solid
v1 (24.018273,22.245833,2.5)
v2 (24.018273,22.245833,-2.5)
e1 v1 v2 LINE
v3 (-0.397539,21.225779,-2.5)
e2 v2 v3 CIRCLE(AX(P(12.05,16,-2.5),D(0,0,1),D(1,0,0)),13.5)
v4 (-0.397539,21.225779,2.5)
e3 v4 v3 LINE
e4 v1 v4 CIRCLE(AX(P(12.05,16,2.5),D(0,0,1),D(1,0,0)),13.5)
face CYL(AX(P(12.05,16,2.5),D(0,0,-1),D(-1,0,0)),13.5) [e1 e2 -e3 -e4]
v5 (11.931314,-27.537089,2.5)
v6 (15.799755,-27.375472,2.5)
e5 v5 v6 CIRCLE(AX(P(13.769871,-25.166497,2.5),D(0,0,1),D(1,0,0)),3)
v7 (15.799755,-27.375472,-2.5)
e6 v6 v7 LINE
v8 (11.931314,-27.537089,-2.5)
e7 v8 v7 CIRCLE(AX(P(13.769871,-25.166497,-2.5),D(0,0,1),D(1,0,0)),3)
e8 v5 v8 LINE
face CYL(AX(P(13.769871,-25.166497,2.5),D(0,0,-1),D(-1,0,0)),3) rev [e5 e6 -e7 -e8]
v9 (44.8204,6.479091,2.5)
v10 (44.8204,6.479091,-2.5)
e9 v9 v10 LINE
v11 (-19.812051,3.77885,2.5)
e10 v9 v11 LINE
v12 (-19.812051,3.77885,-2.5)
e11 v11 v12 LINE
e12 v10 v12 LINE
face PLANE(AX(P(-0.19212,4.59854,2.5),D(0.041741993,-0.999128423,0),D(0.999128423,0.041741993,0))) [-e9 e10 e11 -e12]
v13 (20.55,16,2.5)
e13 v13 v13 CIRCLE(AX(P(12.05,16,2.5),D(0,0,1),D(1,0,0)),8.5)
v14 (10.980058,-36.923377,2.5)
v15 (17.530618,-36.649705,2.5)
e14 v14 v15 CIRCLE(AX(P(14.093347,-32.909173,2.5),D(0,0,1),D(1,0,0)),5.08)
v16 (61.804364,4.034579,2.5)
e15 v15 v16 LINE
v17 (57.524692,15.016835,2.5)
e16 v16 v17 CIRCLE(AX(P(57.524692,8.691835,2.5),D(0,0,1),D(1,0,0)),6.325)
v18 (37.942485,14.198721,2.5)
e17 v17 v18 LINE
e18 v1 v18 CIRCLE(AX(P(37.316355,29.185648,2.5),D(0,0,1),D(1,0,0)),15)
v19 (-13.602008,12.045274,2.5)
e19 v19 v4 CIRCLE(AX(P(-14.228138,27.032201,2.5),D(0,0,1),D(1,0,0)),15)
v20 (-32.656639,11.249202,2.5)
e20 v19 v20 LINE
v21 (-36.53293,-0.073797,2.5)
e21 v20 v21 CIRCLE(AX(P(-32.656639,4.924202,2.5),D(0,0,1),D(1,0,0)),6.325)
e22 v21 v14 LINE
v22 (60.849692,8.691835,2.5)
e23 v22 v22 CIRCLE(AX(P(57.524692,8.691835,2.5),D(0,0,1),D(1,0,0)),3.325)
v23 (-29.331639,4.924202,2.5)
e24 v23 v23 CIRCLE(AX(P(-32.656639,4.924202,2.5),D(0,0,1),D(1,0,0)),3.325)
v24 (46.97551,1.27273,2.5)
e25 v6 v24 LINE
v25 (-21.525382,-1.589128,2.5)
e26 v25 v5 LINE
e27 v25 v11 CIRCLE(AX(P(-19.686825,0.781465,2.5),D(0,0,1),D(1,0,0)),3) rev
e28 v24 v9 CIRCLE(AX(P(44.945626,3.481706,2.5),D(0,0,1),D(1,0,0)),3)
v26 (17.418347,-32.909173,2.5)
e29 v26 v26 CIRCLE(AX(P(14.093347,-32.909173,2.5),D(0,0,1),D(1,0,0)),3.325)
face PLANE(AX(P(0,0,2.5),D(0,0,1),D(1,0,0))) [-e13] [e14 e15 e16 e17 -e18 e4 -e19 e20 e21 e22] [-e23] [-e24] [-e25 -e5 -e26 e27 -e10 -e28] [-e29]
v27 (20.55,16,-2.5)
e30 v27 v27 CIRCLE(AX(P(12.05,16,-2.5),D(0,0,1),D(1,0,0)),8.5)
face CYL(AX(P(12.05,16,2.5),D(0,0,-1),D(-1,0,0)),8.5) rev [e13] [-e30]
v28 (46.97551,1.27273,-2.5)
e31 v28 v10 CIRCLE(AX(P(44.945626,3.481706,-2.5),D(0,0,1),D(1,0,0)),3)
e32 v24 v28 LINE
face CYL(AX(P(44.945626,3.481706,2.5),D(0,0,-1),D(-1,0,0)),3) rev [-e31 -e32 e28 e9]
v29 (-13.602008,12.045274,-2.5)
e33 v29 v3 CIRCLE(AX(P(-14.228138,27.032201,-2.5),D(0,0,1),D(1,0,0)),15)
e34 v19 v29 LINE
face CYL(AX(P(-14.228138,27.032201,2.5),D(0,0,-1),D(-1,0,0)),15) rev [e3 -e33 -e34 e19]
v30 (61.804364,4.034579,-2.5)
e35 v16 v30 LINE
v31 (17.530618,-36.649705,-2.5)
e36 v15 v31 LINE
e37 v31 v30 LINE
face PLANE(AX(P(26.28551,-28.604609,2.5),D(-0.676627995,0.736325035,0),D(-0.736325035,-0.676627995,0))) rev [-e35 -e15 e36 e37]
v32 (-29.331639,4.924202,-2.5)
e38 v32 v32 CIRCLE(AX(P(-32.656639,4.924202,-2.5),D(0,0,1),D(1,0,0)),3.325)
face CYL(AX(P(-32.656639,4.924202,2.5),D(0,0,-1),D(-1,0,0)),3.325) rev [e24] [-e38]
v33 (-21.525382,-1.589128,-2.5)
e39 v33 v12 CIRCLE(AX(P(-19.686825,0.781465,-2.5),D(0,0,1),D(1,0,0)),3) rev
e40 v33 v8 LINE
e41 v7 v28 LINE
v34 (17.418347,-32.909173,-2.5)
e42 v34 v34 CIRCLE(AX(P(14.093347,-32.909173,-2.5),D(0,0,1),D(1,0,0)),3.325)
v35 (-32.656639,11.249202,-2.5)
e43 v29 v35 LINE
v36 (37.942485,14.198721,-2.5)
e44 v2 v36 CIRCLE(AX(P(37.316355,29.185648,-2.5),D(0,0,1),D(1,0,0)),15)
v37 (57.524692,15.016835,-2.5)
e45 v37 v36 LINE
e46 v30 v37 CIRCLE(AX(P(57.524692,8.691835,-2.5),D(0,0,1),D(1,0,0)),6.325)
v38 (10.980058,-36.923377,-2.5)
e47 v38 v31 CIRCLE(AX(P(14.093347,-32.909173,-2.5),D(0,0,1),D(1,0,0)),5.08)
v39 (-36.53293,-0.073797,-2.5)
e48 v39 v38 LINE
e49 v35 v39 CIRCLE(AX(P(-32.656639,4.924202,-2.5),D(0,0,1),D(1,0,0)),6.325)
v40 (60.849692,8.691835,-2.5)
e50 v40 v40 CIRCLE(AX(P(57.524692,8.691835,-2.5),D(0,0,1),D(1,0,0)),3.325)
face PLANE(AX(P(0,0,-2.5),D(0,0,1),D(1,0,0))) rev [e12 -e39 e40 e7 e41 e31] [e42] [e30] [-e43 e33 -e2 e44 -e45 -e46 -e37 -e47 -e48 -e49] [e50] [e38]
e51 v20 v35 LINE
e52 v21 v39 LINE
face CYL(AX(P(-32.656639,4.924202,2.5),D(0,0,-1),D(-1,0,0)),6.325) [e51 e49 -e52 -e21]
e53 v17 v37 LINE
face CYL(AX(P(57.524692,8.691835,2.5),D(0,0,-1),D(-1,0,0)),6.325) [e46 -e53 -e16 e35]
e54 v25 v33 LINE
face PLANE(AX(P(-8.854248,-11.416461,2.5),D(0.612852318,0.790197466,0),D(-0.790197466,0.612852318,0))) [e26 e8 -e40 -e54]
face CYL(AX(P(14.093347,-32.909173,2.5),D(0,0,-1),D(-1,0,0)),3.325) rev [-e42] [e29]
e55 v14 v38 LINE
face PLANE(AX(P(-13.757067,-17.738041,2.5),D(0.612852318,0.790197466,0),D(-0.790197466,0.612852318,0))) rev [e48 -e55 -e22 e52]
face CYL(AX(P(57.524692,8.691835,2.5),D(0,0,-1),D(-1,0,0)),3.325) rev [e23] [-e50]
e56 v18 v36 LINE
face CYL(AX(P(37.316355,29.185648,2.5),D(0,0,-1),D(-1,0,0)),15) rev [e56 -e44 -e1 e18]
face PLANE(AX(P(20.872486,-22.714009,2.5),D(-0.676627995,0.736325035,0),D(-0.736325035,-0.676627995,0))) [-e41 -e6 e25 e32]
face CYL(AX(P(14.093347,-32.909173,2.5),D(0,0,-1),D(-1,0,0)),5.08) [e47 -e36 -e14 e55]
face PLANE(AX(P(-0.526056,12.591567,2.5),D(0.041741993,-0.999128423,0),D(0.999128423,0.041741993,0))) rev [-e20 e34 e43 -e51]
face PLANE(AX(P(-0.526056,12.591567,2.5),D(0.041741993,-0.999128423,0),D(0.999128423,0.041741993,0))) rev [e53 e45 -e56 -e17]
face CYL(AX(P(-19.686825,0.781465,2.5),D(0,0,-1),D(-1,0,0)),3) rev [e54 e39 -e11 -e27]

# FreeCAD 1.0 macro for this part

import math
import FreeCAD as App
import Part
import Sketcher

doc = App.newDocument("Part")
body = doc.addObject("PartDesign::Body", "Body")

sketch1 = body.newObject("Sketcher::SketchObject", "Sketch")
sketch1.AttachmentSupport = (doc.getObject("XY_Plane"), [""])
sketch1.MapMode = "FlatFace"
sketch1.addGeometry(Part.ArcOfCircle(Part.Circle(App.Vector(57.524692, 8.691835, 0), App.Vector(0, 0, 1), 6.325), math.radians(60.678899), math.radians(90)), False)
sketch1.addGeometry(Part.LineSegment(App.Vector(57.524692, 15.016835, 0), App.Vector(56.997116, 14.994793, 0)), False)
sketch1.addGeometry(Part.LineSegment(App.Vector(56.997116, 14.994793, 0), App.Vector(37.942485, 14.198721, 0)), False)
sketch1.addGeometry(Part.ArcOfCircle(Part.Circle(App.Vector(37.316355, 29.185648, 0), App.Vector(0, 0, 1), 15), math.radians(-152.441482), math.radians(-87.607665)), False)
sketch1.addGeometry(Part.ArcOfCircle(Part.Circle(App.Vector(12.05, 16, 0), App.Vector(0, 0, 1), 13.5), math.radians(27.558518), math.radians(157.226152)), False)
sketch1.addGeometry(Part.ArcOfCircle(Part.Circle(App.Vector(-14.228138, 27.032201, 0), App.Vector(0, 0, 1), 15), math.radians(-87.607665), math.radians(-22.773848)), False)
sketch1.addGeometry(Part.LineSegment(App.Vector(-13.602008, 12.045274, 0), App.Vector(-32.656639, 11.249202, 0)), False)
sketch1.addGeometry(Part.ArcOfCircle(Part.Circle(App.Vector(-32.656639, 4.924202, 0), App.Vector(0, 0, 1), 6.325), math.radians(90), math.radians(142.045044)), False)
sketch1.addGeometry(Part.ArcOfCircle(Part.Circle(App.Vector(-32.656639, 4.924202, 0), App.Vector(0, 0, 1), 6.325), math.radians(142.045044), math.radians(232.203969)), False)
sketch1.addGeometry(Part.LineSegment(App.Vector(-36.53293, -0.073797, 0), App.Vector(10.980058, -36.923377, 0)), False)
sketch1.addGeometry(Part.ArcOfCircle(Part.Circle(App.Vector(14.093347, -32.909173, 0), App.Vector(0, 0, 1), 5.08), math.radians(-127.796031), math.radians(-47.419299)), False)
sketch1.addGeometry(Part.LineSegment(App.Vector(17.530618, -36.649705, 0), App.Vector(61.804364, 4.034579, 0)), False)
sketch1.addGeometry(Part.ArcOfCircle(Part.Circle(App.Vector(57.524692, 8.691835, 0), App.Vector(0, 0, 1), 6.325), math.radians(-47.419299), math.radians(60.678899)), False)
sketch1.addGeometry(Part.Circle(App.Vector(14.093347, -32.909173, 0), App.Vector(0, 0, 1), 3.325), False)
sketch1.addGeometry(Part.ArcOfCircle(Part.Circle(App.Vector(-19.686825, 0.781465, 0), App.Vector(0, 0, 1), 3), math.radians(92.392335), math.radians(232.203969)), False)
sketch1.addGeometry(Part.LineSegment(App.Vector(-19.812051, 3.77885, 0), App.Vector(44.8204, 6.479091, 0)), False)
sketch1.addGeometry(Part.ArcOfCircle(Part.Circle(App.Vector(44.945626, 3.481706, 0), App.Vector(0, 0, 1), 3), math.radians(-47.419299), math.radians(92.392335)), False)
sketch1.addGeometry(Part.LineSegment(App.Vector(46.97551, 1.27273, 0), App.Vector(15.799755, -27.375472, 0)), False)
sketch1.addGeometry(Part.ArcOfCircle(Part.Circle(App.Vector(13.769871, -25.166497, 0), App.Vector(0, 0, 1), 3), math.radians(-127.796031), math.radians(-47.419299)), False)
sketch1.addGeometry(Part.LineSegment(App.Vector(11.931314, -27.537089, 0), App.Vector(-21.525382, -1.589128, 0)), False)
sketch1.addGeometry(Part.Circle(App.Vector(-32.656639, 4.924202, 0), App.Vector(0, 0, 1), 3.325), False)
sketch1.addGeometry(Part.Circle(App.Vector(12.05, 16, 0), App.Vector(0, 0, 1), 8.5), False)
sketch1.addGeometry(Part.Circle(App.Vector(57.524692, 8.691835, 0), App.Vector(0, 0, 1), 3.325), False)
sketch1.addConstraint(Sketcher.Constraint("Coincident", 0, 2, 1, 1))
sketch1.addConstraint(Sketcher.Constraint("Coincident", 1, 2, 2, 1))
sketch1.addConstraint(Sketcher.Constraint("Coincident", 2, 2, 3, 2))
sketch1.addConstraint(Sketcher.Constraint("Coincident", 3, 1, 4, 1))
sketch1.addConstraint(Sketcher.Constraint("Coincident", 4, 2, 5, 2))
sketch1.addConstraint(Sketcher.Constraint("Coincident", 5, 1, 6, 1))
sketch1.addConstraint(Sketcher.Constraint("Coincident", 6, 2, 7, 1))
sketch1.addConstraint(Sketcher.Constraint("Coincident", 7, 2, 8, 1))
sketch1.addConstraint(Sketcher.Constraint("Coincident", 8, 2, 9, 1))
sketch1.addConstraint(Sketcher.Constraint("Coincident", 9, 2, 10, 1))
sketch1.addConstraint(Sketcher.Constraint("Coincident", 10, 2, 11, 1))
sketch1.addConstraint(Sketcher.Constraint("Coincident", 11, 2, 12, 1))
sketch1.addConstraint(Sketcher.Constraint("Coincident", 12, 2, 0, 1))
sketch1.addConstraint(Sketcher.Constraint("Coincident", 14, 1, 15, 1))
sketch1.addConstraint(Sketcher.Constraint("Coincident", 15, 2, 16, 2))
sketch1.addConstraint(Sketcher.Constraint("Coincident", 16, 1, 17, 1))
sketch1.addConstraint(Sketcher.Constraint("Coincident", 17, 2, 18, 2))
sketch1.addConstraint(Sketcher.Constraint("Coincident", 18, 1, 19, 1))
sketch1.addConstraint(Sketcher.Constraint("Coincident", 19, 2, 14, 2))
sketch1.addConstraint(Sketcher.Constraint("Coincident", 8, 3, 7, 3))
sketch1.addConstraint(Sketcher.Constraint("Coincident", 12, 3, 0, 3))
sketch1.addConstraint(Sketcher.Constraint("Coincident", 13, 3, 10, 3))
sketch1.addConstraint(Sketcher.Constraint("Coincident", 20, 3, 7, 3))
sketch1.addConstraint(Sketcher.Constraint("Coincident", 21, 3, 4, 3))
sketch1.addConstraint(Sketcher.Constraint("Coincident", 22, 3, 0, 3))
sketch1.addConstraint(Sketcher.Constraint("Diameter", 21, 17.0))
sketch1.addConstraint(Sketcher.Constraint("Radius", 3, 15.0))
sketch1.addConstraint(Sketcher.Constraint("Radius", 5, 15.0))
sketch1.addConstraint(Sketcher.Constraint("Radius", 14, 3.0))
sketch1.addConstraint(Sketcher.Constraint("Radius", 16, 3.0))
sketch1.addConstraint(Sketcher.Constraint("Radius", 18, 3.0))
sketch1.addConstraint(Sketcher.Constraint("Radius", 4, 13.5))
sketch1.addConstraint(Sketcher.Constraint("Diameter", 13, 6.65))
sketch1.addConstraint(Sketcher.Constraint("Diameter", 20, 6.65))
sketch1.addConstraint(Sketcher.Constraint("Diameter", 22, 6.65))
sketch1.addConstraint(Sketcher.Constraint("Radius", 10, 5.08))
sketch1.addConstraint(Sketcher.Constraint("DistanceY", -1, 1, 4, 3, 16.0))
sketch1.addConstraint(Sketcher.Constraint("Radius", 0, 6.325))
sketch1.addConstraint(Sketcher.Constraint("Radius", 7, 6.325))
sketch1.addConstraint(Sketcher.Constraint("DistanceX", -1, 1, 4, 3, 12.05))
sketch1.addConstraint(Sketcher.Constraint("DistanceY", 7, 3, 5, 3, 22.107998))
sketch1.addConstraint(Sketcher.Constraint("DistanceY", 8, 2, 20, 3, 4.997999))
sketch1.addConstraint(Sketcher.Constraint("DistanceY", -1, 1, 5, 3, 27.032201))
sketch1.addConstraint(Sketcher.Constraint("DistanceX", -1, 1, 15, 2, 44.8204))
sketch1.addConstraint(Sketcher.Constraint("DistanceX", 7, 3, 5, 3, 18.428501))
sketch1.addConstraint(Sketcher.Constraint("DistanceX", 5, 3, 4, 2, 13.830599))
sketch1.addConstraint(Sketcher.Constraint("DistanceY", 13, 3, 17, 2, 5.533701))
sketch1.addConstraint(Sketcher.Constraint("DistanceX", -1, 1, 18, 3, 13.769871))
sketch1.addConstraint(Sketcher.Constraint("DistanceY", -1, 1, 2, 2, 14.198721))
sketch1.addConstraint(Sketcher.Constraint("DistanceX", 5, 1, -1, 1, 13.602008))
sketch1.addConstraint(Sketcher.Constraint("DistanceX", 6, 2, -1, 1, 32.656639))
sketch1.addConstraint(Sketcher.Constraint("DistanceY", -1, 1, 7, 2, 8.814342))
sketch1.addConstraint(Sketcher.Constraint("DistanceY", -1, 1, 11, 2, 4.034579))
sketch1.addConstraint(Sketcher.Constraint("DistanceX", 14, 1, -1, 1, 19.812051))
sketch1.addConstraint(Sketcher.Constraint("DistanceY", -1, 1, 14, 1, 3.77885))
sketch1.addConstraint(Sketcher.Constraint("DistanceY", -1, 1, 15, 2, 6.479091))
sketch1.addConstraint(Sketcher.Constraint("DistanceX", -1, 1, 16, 1, 46.97551))
sketch1.addConstraint(Sketcher.Constraint("DistanceY", -1, 1, 16, 1, 1.27273))
sketch1.addConstraint(Sketcher.Constraint("DistanceY", 17, 2, -1, 1, 27.375472))
sketch1.addConstraint(Sketcher.Constraint("DistanceY", 18, 1, -1, 1, 27.537089))
sketch1.addConstraint(Sketcher.Constraint("DistanceX", 5, 3, 0, 3, 71.75283))
sketch1.addConstraint(Sketcher.Constraint("DistanceY", 10, 3, 0, 3, 41.601008))
sketch1.addConstraint(Sketcher.Constraint("DistanceY", 10, 3, 14, 3, 33.690638))
sketch1.addConstraint(Sketcher.Constraint("DistanceX", 3, 3, 16, 3, 7.629271))
sketch1.addConstraint(Sketcher.Constraint("DistanceX", 13, 3, 16, 3, 30.852278))
sketch1.addConstraint(Sketcher.Constraint("DistanceY", 18, 3, 14, 3, 25.947962))
sketch1.addConstraint(Sketcher.Constraint("DistanceY", 1, 2, 0, 2, 0.022041))
sketch1.addConstraint(Sketcher.Constraint("DistanceX", 16, 3, 1, 2, 12.05149))
sketch1.addConstraint(Sketcher.Constraint("DistanceX", 3, 1, 3, 3, 13.298082))
sketch1.addConstraint(Sketcher.Constraint("DistanceX", 9, 2, 10, 3, 3.11329))
sketch1.addConstraint(Sketcher.Constraint("DistanceX", 13, 3, 10, 2, 3.43727))
sketch1.addConstraint(Sketcher.Constraint("DistanceX", 1, 2, 12, 2, 3.624951))
sketch1.addConstraint(Sketcher.Constraint("DistanceX", 19, 2, 14, 1, 1.713331))
sketch1.addConstraint(Sketcher.Constraint("Distance", 1, 0.528036))
pad1 = body.newObject("PartDesign::Pad", "Pad")
pad1.Profile = sketch1
pad1.Length = 5
pad1.Midplane = True

doc.recompute()
